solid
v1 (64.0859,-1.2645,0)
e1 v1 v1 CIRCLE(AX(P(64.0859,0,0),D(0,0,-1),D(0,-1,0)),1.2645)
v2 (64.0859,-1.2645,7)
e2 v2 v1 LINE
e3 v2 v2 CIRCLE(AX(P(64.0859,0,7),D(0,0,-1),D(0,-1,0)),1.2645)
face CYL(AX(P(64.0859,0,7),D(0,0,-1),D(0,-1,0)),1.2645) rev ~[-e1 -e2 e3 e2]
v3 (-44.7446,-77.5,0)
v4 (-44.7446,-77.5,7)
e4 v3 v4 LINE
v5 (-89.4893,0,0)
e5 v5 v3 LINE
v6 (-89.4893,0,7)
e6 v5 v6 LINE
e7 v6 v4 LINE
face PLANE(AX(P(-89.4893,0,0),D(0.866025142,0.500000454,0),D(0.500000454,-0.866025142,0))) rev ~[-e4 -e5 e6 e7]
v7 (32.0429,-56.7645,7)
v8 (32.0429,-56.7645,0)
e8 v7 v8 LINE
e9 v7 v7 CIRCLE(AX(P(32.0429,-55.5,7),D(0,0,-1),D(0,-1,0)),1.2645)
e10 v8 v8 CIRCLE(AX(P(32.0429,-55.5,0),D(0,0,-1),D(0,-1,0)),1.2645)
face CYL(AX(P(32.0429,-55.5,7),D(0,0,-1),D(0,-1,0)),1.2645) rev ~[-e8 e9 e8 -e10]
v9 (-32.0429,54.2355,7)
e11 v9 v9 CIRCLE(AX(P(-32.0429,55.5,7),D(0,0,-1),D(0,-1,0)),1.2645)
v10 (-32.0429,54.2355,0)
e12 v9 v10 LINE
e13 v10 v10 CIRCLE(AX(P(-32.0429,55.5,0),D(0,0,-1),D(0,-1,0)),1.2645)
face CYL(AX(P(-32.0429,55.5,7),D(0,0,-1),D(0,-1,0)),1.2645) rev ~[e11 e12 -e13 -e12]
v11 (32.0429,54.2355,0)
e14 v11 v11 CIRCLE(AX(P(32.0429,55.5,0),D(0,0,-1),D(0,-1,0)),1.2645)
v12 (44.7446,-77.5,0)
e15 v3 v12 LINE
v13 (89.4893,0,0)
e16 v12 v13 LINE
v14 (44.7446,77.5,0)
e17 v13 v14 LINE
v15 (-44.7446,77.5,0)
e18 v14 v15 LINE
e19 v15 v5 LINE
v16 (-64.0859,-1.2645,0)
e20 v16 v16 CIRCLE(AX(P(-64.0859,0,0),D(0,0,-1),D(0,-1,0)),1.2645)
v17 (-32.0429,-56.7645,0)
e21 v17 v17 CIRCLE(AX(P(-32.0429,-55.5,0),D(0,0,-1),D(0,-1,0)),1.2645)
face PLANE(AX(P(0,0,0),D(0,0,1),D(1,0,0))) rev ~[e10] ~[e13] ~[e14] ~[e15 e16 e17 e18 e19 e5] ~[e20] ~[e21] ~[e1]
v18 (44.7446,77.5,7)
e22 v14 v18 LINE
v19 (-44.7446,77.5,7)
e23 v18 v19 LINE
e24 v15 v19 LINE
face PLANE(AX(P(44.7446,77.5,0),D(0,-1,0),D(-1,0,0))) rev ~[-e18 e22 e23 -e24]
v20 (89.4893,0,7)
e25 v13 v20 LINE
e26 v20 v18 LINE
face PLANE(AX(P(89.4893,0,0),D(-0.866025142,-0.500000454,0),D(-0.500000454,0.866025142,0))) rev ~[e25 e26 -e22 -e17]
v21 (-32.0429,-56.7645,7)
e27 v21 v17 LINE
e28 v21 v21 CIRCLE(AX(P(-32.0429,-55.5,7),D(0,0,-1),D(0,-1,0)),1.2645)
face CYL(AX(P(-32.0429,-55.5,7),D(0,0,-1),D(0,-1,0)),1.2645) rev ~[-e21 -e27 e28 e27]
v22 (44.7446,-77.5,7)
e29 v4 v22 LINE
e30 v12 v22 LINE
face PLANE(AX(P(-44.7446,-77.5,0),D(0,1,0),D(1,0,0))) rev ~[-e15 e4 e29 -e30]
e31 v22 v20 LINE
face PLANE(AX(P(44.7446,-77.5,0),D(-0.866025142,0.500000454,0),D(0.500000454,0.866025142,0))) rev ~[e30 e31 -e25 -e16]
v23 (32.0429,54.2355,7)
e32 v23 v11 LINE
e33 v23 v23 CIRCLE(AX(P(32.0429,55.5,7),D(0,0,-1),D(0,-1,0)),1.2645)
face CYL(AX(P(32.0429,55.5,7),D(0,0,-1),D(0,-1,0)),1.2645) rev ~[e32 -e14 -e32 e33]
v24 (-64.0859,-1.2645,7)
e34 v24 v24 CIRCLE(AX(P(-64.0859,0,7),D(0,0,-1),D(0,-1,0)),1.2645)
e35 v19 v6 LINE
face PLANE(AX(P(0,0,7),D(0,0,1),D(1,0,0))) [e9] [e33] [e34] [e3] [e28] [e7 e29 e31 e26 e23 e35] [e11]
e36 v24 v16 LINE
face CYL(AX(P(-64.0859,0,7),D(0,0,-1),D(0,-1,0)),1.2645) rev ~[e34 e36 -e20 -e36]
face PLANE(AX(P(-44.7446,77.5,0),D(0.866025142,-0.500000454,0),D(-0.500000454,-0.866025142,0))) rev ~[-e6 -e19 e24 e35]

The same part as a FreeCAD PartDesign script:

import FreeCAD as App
import Part
import Sketcher

V = App.Vector
Q = App.Units.Quantity


def add_polygon(sketch, points):
    """Adds a closed chain of lines whose ends are joined by coincident constraints."""
    first, n = sketch.GeometryCount, len(points)
    for a, b in zip(points, points[1:] + points[:1]):
        sketch.addGeometry(Part.LineSegment(App.Vector(*a, 0), App.Vector(*b, 0)), False)
    for i in range(n):
        sketch.addConstraint(Sketcher.Constraint("Coincident", first + i, 2, first + (i + 1) % n, 1))

doc = App.newDocument("Part")
params = doc.addObject("Spreadsheet::Sheet", "Params")
for row, (alias, value) in enumerate([
    ("pad1_length", "7 mm"),
    ("hole_diameter", "2.529 mm"),
], start=1):
    params.set(f"A{row}", alias)
    params.set(f"B{row}", "=" + value)
    params.setAlias(f"B{row}", alias)

body = doc.addObject("PartDesign::Body", "Body")

sketch1 = body.newObject("Sketcher::SketchObject", "Sketch")
sketch1.AttachmentSupport = (doc.getObject("XY_Plane"), [""])
sketch1.MapMode = "FlatFace"
add_polygon(sketch1, [(89, 0), (45, 78), (-45, 78), (-89, 0), (-45, -78), (45, -78)])
sketch1.addConstraint([
    Sketcher.Constraint("Horizontal", 1),
    Sketcher.Constraint("Horizontal", 4),
    Sketcher.Constraint("Symmetric", 0, 2, 3, 2, -1, 1),
    Sketcher.Constraint("Symmetric", 2, 2, 5, 2, -1, 1),
    Sketcher.Constraint("PointOnObject", 2, 2, -1),
    Sketcher.Constraint("Parallel", 2, 5),
    Sketcher.Constraint("Vertical", 1, 2, 3, 2),
    Sketcher.Constraint("DistanceY", -1, 1, 0, 2, 77.5),
    Sketcher.Constraint("Angle", 0, Q("120 deg")),
    Sketcher.Constraint("DistanceX", 1, 2, 1, 1, 89.4892),
])
pad1 = body.newObject("PartDesign::Pad", "Pad")
pad1.Profile = sketch1
pad1.setExpression("Length", "Params.pad1_length")

sketch2 = body.newObject("Sketcher::SketchObject", "Sketch001")
sketch2.AttachmentSupport = (doc.getObject("XY_Plane"), [""])
sketch2.MapMode = "FlatFace"
sketch2.AttachmentOffset = App.Placement(V(0, 0, 7), App.Rotation())
sketch2.addGeometry([
    Part.Circle(V(32, 55.5, 0), V(0, 0, 1), 1.3),
    Part.Circle(V(64.1, 0, 0), V(0, 0, 1), 1.3),
    Part.Circle(V(32, -55.5, 0), V(0, 0, 1), 1.3),
    Part.Circle(V(-32, -55.5, 0), V(0, 0, 1), 1.3),
    Part.Circle(V(-32, 55.5, 0), V(0, 0, 1), 1.3),
    Part.Circle(V(-64.1, 0, 0), V(0, 0, 1), 1.3),
], False)
sketch2.addConstraint([
    Sketcher.Constraint("Equal", 0, 1),
    Sketcher.Constraint("Equal", 1, 2),
    Sketcher.Constraint("Equal", 2, 3),
    Sketcher.Constraint("Equal", 3, 4),
    Sketcher.Constraint("Equal", 4, 5),
    Sketcher.Constraint("Symmetric", 0, 3, 3, 3, -1, 1),
    Sketcher.Constraint("Symmetric", 2, 3, 4, 3, -1, 1),
    Sketcher.Constraint("Symmetric", 1, 3, 5, 3, -1, 1),
    Sketcher.Constraint("Symmetric", 2, 3, 3, 3, -2),
    Sketcher.Constraint("PointOnObject", 1, 3, -1),
    Sketcher.Constraint("Diameter", 0, 2.529),
    Sketcher.Constraint("DistanceY", 2, 3, 0, 3, 111.0),
    Sketcher.Constraint("DistanceX", -1, 1, 0, 3, 32.043),
    Sketcher.Constraint("DistanceX", -1, 1, 1, 3, 64.086),
])
doc.recompute()
hole = body.newObject("PartDesign::Hole", "Hole")
hole.Profile = sketch2
hole.ThreadType = "None"
hole.setExpression("Diameter", "Params.hole_diameter")
hole.DepthType = "ThroughAll"

doc.recompute()
